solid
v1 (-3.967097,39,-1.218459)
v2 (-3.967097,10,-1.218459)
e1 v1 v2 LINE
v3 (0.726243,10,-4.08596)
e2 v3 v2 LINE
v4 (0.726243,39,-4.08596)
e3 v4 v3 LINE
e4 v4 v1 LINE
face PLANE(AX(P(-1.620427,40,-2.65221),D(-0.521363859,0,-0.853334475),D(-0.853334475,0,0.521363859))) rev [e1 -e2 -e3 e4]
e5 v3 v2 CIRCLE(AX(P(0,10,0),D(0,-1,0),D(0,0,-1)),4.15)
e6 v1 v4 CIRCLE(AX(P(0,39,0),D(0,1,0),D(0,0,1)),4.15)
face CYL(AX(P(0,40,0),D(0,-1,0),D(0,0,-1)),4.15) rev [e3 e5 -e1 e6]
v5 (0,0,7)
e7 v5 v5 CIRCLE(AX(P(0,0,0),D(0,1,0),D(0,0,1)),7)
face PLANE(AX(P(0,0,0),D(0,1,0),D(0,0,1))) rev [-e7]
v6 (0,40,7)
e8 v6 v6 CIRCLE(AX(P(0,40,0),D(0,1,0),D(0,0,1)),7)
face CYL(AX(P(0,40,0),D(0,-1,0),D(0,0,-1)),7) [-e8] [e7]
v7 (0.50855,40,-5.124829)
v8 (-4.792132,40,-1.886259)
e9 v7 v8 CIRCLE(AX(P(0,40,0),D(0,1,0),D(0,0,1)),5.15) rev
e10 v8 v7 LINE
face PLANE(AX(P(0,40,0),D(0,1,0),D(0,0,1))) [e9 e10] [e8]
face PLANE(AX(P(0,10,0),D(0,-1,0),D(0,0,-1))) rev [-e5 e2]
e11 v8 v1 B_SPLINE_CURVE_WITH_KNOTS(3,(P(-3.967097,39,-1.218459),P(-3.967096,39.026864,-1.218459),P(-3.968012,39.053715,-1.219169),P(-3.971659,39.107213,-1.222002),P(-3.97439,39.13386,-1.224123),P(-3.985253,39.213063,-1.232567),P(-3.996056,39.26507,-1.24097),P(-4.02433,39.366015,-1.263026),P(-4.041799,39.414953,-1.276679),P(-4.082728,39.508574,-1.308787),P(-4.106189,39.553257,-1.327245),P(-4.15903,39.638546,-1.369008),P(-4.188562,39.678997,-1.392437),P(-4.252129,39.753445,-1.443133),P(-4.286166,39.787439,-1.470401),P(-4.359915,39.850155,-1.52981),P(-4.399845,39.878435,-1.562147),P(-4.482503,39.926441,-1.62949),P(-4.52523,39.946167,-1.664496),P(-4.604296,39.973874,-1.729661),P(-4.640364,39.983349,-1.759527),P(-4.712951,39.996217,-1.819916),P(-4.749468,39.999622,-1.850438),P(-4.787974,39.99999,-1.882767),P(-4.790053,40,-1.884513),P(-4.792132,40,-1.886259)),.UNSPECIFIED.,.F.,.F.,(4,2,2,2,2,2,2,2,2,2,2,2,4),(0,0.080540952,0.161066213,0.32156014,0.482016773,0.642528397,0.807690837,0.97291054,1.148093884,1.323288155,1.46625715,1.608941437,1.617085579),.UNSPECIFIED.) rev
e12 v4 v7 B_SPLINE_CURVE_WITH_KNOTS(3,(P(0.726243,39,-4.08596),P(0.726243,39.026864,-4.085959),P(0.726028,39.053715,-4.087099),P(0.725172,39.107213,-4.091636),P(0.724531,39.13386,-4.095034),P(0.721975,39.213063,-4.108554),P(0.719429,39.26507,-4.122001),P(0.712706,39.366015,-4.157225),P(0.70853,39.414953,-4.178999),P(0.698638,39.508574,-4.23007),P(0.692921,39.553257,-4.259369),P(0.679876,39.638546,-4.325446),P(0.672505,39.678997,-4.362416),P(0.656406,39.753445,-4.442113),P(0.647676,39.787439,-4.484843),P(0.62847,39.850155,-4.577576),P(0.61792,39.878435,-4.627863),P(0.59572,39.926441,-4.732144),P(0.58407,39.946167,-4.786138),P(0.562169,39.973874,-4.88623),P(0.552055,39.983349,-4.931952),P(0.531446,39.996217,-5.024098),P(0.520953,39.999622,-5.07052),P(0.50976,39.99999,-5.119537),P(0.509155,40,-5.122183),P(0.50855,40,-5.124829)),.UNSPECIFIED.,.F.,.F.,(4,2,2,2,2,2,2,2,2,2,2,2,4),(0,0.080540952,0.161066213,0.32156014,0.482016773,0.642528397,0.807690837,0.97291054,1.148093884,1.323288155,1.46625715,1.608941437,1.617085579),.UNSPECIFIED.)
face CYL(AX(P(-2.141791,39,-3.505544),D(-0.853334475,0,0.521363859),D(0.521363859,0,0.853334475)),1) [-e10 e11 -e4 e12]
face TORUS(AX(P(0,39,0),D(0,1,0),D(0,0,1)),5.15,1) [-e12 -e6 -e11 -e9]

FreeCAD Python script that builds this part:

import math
import FreeCAD as App
import Part
import Sketcher

V = App.Vector
Q = App.Units.Quantity


def edges_at(feature, points):
    """Names of the edges that pass closest to the given points."""
    edges = feature.Shape.Edges
    near = lambda p: min(range(len(edges)), key=lambda i: edges[i].distToShape(Part.Vertex(*p))[0])
    return sorted({f"Edge{near(p) + 1}" for p in points})

doc = App.newDocument("Part")
params = doc.addObject("Spreadsheet::Sheet", "Params")
for row, (alias, value) in enumerate([
    ("sketch1_diameter", "14 mm"),
    ("sketch1_radius", "4.15 mm"),
    ("sketch1_length", "5.5 mm"),
    ("pad1_length", "40 mm"),
    ("fillet_radius", "1 mm"),
    ("sketch2_diameter", "8.3 mm"),
    ("pad2_length", "10 mm"),
], start=1):
    params.set(f"A{row}", alias)
    params.set(f"B{row}", "=" + value)
    params.setAlias(f"B{row}", alias)

body = doc.addObject("PartDesign::Body", "Body")

sketch1 = doc.addObject("Sketcher::SketchObject", "Sketch")
body.addObject(sketch1)
sketch1.AttachmentSupport = (doc.XZ_Plane, [""])
sketch1.MapMode = "FlatFace"
sketch1.addGeometry([
    Part.Circle(V(0, 0, 0), V(0, 0, 1), 7),
    Part.ArcOfCircle(Part.Circle(V(0, 0, 0), V(0, 0, 1), 4.2), math.radians(-80), math.radians(197)),
    Part.LineSegment(V(-4, -1.2, 0), V(0.7, -4.1, 0)),
], False)
sketch1.addConstraint([
    Sketcher.Constraint("Coincident", 1, 1, 2, 2),
    Sketcher.Constraint("Coincident", 2, 1, 1, 2),
    Sketcher.Constraint("Coincident", 0, 3, -1, 1),
    Sketcher.Constraint("Coincident", 1, 3, -1, 1),
    Sketcher.Constraint("Diameter", 0, Q("14 mm")),
    Sketcher.Constraint("Radius", 1, Q("4.15 mm")),
    Sketcher.Constraint("Distance", 2, Q("5.5 mm")),
    Sketcher.Constraint("DistanceY", 1, 1, 2, 1, Q("2.867501 mm")),
])
sketch1.setExpression("Constraints[4]", "Params.sketch1_diameter")
sketch1.setExpression("Constraints[5]", "Params.sketch1_radius")
sketch1.setExpression("Constraints[6]", "Params.sketch1_length")
pad1 = doc.addObject("PartDesign::Pad", "Pad")
body.addObject(pad1)
pad1.Profile = sketch1
pad1.setExpression("Length", "Params.pad1_length")
pad1.Reversed = True
doc.recompute()

fillet = doc.addObject("PartDesign::Fillet", "Fillet")
body.addObject(fillet)
fillet.Base = (pad1, edges_at(pad1, [(-1.62, 40, -2.652), (2.164, 40, 3.541)]))
fillet.setExpression("Radius", "Params.fillet_radius")

sketch2 = doc.addObject("Sketcher::SketchObject", "Sketch001")
body.addObject(sketch2)
sketch2.AttachmentSupport = (doc.XZ_Plane, [""])
sketch2.MapMode = "FlatFace"
sketch2.addGeometry(Part.Circle(V(0, 0, 0), V(0, 0, 1), 4.2), False)
sketch2.addConstraint([
    Sketcher.Constraint("Coincident", 0, 3, -1, 1),
    Sketcher.Constraint("Diameter", 0, Q("8.3 mm")),
])
sketch2.setExpression("Constraints[1]", "Params.sketch2_diameter")
pad2 = doc.addObject("PartDesign::Pad", "Pad001")
body.addObject(pad2)
pad2.Profile = sketch2
pad2.setExpression("Length", "Params.pad2_length")
pad2.Reversed = True

doc.recompute()
